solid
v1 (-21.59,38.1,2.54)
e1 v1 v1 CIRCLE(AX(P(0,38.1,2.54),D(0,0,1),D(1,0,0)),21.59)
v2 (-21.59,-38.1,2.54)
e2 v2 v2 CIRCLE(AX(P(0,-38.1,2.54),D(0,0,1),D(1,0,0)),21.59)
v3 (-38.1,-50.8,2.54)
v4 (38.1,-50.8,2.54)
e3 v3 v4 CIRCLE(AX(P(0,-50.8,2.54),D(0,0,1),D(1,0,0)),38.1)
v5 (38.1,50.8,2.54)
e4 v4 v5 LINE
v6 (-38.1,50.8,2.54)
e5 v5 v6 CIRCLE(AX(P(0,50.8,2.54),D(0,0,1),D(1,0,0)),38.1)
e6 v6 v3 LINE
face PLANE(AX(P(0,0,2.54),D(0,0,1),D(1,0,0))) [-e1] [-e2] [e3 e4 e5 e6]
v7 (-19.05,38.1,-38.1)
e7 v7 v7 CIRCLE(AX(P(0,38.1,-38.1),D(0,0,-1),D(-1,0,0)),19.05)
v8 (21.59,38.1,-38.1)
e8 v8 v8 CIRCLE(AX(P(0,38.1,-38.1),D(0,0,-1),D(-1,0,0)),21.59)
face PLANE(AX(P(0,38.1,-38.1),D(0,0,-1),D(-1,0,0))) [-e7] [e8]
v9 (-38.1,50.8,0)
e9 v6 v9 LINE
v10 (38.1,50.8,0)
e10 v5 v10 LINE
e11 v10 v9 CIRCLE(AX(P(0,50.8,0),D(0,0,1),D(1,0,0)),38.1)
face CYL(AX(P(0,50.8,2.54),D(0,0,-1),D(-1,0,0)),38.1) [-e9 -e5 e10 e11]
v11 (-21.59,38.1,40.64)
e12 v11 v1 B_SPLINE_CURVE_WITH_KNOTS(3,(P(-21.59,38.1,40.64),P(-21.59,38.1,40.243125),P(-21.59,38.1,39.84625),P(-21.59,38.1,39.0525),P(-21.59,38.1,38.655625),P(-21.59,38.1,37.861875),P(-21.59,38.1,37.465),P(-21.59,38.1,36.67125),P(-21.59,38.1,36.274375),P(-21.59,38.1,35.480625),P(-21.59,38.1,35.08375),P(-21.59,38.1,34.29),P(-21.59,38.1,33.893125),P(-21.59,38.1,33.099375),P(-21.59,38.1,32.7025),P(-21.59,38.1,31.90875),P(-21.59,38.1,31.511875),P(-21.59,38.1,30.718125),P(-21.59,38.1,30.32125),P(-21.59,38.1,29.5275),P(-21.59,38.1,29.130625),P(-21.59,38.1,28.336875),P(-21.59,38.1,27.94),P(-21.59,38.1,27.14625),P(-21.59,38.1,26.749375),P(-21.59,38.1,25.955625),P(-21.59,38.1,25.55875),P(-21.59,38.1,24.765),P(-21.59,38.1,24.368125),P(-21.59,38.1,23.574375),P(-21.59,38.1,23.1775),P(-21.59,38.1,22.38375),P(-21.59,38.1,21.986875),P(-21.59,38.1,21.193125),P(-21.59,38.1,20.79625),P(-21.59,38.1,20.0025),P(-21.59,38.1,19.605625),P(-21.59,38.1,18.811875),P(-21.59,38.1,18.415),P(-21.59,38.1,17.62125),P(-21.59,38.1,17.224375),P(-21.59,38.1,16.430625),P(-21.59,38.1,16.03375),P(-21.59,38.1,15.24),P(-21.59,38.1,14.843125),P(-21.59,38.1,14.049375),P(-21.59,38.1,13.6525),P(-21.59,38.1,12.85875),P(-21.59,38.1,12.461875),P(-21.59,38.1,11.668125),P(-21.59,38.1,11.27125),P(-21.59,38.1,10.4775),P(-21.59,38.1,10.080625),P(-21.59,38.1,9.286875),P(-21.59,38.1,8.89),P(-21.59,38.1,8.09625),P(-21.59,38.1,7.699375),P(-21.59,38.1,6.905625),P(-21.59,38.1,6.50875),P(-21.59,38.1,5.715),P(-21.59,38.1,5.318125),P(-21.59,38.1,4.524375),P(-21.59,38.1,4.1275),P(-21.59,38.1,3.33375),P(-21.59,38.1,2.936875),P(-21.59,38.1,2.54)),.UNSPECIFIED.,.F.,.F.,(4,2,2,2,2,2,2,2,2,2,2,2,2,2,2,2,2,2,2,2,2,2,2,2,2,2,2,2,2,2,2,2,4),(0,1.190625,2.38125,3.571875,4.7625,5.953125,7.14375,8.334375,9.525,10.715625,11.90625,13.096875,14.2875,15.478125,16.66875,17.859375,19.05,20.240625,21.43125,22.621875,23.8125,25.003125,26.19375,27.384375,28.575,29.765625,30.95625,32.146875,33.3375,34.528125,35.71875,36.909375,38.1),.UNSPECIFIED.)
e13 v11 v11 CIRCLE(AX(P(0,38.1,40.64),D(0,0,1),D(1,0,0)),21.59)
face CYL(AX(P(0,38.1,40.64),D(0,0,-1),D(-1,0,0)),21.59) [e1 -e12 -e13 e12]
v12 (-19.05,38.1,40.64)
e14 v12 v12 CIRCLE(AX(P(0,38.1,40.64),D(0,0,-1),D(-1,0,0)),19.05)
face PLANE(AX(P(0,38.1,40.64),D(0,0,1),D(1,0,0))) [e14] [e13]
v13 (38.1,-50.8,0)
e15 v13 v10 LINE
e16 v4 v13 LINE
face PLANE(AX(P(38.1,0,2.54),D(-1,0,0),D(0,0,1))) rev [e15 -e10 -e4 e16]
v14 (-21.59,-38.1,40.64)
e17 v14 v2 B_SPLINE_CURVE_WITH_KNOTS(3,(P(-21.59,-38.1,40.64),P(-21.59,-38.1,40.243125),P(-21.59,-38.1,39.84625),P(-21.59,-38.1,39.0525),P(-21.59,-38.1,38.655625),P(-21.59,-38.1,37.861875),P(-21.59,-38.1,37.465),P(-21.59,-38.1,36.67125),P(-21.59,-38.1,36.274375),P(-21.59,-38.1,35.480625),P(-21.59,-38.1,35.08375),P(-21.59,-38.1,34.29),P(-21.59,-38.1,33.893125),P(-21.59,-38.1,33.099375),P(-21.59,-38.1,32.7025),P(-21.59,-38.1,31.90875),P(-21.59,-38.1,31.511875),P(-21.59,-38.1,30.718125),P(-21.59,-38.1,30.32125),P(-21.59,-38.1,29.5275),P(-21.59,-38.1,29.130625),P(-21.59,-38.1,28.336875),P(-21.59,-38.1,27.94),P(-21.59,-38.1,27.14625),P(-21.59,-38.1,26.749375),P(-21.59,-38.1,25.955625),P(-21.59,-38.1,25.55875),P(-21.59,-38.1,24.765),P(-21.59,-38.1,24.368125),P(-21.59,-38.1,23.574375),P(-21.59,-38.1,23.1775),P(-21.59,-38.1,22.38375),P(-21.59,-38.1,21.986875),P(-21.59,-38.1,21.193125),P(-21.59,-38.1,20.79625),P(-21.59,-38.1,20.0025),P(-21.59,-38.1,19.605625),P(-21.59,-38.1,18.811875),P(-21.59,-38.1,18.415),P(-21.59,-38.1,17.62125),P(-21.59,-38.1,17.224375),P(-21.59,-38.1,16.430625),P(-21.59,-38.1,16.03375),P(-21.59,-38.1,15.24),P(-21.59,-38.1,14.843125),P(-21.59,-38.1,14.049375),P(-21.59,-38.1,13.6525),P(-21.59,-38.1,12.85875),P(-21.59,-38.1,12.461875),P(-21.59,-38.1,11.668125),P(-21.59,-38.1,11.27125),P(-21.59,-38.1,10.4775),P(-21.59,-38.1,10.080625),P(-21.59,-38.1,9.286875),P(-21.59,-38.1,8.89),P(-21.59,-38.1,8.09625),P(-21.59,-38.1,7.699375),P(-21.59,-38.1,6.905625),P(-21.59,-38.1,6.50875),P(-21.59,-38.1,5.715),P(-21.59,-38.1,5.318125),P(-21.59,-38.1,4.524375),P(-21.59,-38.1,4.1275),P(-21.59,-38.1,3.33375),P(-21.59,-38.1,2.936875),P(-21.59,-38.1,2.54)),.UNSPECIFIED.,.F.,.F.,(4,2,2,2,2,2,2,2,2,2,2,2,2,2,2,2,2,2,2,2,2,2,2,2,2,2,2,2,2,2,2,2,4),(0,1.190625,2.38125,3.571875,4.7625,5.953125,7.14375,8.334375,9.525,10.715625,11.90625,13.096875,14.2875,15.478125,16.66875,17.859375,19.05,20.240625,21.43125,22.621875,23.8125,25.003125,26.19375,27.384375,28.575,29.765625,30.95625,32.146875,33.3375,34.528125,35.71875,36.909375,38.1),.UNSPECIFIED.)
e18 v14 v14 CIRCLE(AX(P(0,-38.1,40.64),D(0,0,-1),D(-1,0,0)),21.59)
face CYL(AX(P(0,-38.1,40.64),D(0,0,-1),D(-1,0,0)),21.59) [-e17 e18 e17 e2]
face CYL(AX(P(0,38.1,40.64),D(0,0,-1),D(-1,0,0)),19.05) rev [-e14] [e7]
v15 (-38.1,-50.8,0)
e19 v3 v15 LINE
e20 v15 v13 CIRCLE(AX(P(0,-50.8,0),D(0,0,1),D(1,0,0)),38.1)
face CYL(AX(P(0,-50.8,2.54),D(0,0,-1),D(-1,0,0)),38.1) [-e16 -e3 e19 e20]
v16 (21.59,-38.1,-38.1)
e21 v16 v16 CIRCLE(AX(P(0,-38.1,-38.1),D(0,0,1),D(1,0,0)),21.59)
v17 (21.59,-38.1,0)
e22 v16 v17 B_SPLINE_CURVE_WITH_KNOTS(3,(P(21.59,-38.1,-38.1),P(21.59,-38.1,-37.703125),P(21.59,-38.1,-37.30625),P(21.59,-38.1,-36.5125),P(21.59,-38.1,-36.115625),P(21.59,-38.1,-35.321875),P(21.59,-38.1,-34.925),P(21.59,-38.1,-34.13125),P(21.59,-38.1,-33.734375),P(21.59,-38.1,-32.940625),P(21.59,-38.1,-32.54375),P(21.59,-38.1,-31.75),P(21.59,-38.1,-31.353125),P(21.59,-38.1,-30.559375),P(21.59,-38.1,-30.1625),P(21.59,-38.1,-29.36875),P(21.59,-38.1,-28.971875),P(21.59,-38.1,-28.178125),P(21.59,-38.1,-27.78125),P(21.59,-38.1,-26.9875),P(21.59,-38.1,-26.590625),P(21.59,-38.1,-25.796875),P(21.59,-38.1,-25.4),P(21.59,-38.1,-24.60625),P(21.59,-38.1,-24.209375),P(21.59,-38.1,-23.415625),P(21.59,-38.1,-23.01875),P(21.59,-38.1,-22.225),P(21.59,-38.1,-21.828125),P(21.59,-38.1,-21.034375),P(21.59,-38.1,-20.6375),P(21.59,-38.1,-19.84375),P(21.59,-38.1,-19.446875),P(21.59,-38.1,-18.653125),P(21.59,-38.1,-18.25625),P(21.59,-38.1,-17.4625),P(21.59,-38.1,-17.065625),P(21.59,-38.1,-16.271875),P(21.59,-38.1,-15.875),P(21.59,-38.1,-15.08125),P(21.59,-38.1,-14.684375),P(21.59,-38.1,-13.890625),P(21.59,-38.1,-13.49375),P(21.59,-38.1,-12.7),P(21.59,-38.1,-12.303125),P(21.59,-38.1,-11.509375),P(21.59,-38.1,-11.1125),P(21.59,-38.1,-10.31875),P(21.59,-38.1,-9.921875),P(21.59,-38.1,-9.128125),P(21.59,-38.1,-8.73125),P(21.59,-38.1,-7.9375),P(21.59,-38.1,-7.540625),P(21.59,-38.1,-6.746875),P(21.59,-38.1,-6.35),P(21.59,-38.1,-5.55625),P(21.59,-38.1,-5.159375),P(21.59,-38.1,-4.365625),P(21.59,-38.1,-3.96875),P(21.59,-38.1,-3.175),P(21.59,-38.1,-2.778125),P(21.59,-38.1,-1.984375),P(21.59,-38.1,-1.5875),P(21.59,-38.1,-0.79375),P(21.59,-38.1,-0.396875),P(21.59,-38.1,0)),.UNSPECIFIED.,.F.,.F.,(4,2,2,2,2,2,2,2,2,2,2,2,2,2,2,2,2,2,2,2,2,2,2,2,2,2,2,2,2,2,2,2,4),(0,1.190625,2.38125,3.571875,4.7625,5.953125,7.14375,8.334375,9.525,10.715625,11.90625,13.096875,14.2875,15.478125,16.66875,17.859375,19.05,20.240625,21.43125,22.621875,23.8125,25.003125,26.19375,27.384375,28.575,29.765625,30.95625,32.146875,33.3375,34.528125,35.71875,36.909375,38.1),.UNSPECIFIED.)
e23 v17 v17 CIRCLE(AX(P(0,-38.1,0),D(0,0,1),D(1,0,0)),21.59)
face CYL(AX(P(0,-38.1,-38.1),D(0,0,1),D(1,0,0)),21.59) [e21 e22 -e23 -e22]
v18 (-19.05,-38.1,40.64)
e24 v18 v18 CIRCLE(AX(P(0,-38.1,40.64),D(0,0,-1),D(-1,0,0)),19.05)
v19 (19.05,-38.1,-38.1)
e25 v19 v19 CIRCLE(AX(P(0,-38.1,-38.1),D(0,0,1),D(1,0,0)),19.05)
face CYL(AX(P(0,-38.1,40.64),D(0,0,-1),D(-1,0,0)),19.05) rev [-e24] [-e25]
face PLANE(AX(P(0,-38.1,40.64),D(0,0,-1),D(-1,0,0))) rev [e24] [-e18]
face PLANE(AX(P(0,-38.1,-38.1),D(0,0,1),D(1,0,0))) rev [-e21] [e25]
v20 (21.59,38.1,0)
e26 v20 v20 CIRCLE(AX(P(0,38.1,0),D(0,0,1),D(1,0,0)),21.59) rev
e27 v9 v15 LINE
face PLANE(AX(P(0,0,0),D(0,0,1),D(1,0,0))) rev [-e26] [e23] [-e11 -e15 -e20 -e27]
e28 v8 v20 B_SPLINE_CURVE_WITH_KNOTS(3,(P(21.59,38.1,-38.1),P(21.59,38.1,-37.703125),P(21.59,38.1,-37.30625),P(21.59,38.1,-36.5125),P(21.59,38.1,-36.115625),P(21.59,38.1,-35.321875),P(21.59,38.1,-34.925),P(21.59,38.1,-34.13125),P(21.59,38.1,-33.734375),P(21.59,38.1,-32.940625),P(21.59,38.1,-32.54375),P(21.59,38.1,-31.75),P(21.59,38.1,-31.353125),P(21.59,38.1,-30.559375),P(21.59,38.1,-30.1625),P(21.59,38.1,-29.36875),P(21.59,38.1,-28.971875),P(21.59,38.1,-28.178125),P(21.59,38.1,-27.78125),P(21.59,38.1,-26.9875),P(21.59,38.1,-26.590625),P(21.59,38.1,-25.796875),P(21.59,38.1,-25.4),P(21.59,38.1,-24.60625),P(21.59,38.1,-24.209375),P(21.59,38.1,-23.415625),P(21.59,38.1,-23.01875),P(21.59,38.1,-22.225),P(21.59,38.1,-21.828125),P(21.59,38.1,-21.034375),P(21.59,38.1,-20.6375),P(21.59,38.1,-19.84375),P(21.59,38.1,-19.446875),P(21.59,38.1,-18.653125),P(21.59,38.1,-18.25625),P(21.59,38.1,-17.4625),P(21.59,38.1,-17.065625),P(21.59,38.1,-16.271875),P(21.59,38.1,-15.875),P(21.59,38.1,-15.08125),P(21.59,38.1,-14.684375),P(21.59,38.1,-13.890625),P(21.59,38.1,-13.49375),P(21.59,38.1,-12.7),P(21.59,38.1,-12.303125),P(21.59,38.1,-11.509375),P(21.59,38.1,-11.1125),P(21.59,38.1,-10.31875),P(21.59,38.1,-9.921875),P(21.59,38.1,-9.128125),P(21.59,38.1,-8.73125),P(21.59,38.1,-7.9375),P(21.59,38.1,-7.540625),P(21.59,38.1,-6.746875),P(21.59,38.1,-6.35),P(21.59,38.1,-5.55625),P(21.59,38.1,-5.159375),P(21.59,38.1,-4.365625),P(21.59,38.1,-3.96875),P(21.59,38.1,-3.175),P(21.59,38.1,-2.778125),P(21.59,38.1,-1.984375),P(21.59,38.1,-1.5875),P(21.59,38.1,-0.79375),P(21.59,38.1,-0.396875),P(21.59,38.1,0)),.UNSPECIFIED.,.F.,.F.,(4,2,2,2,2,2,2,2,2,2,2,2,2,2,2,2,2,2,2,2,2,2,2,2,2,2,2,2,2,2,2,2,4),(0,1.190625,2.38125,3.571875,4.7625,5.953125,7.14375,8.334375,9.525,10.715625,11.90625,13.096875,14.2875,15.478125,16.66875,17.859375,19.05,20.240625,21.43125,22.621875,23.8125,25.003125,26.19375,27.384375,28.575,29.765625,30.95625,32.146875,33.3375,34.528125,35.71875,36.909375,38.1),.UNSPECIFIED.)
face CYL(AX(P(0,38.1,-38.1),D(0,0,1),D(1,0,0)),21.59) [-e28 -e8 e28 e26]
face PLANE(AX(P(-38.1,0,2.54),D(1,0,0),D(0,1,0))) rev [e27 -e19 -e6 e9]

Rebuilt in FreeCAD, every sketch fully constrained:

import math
import FreeCAD as App
import Part
import Sketcher
Q = App.Units.Quantity

doc = App.newDocument("Part")
params = doc.addObject("Spreadsheet::Sheet", "Params")
for row, (alias, value) in enumerate([
    ("sketch1_radius", "1.5 in"),
    ("sketch1_height", "4 in"),
    ("pad1_length", "0.1 in"),
    ("sketch2_diameter", "1.7 in"),
    ("pad2_length", "1.5 in"),
    ("sketch3_diameter", "1.7 in"),
    ("pad3_length", "1.5 in"),
    ("sketch4_diameter", "1.5 in"),
], start=1):
    params.set(f"A{row}", alias)
    params.set(f"B{row}", "=" + value)
    params.setAlias(f"B{row}", alias)

body = doc.addObject("PartDesign::Body", "Body")

# Sketch on XY plane
sketch1 = doc.addObject("Sketcher::SketchObject", "Sketch")
body.addObject(sketch1)
sketch1.AttachmentSupport = (doc.XY_Plane, [""])
sketch1.MapMode = "FlatFace"
sketch1.addGeometry([
    Part.ArcOfCircle(Part.Circle(App.Vector(0, -50.8, 0), App.Vector(0, 0, 1), 38.1), math.radians(180), math.radians(360)),
    Part.LineSegment(App.Vector(38.1, -50.8, 0), App.Vector(38.1, 50.8, 0)),
    Part.ArcOfCircle(Part.Circle(App.Vector(0, 50.8, 0), App.Vector(0, 0, 1), 38.1), math.radians(0), math.radians(180)),
    Part.LineSegment(App.Vector(-38.1, 50.8, 0), App.Vector(-38.1, -50.8, 0)),
], False)
sketch1.addConstraint([
    Sketcher.Constraint("Tangent", 0, 2, 1, 1),
    Sketcher.Constraint("Tangent", 1, 2, 2, 1),
    Sketcher.Constraint("Tangent", 2, 2, 3, 1),
    Sketcher.Constraint("Tangent", 3, 2, 0, 1),
    Sketcher.Constraint("Vertical", 1),
    Sketcher.Constraint("Vertical", 3),
    Sketcher.Constraint("Symmetric", 0, 3, 2, 3, -1, 1),
    Sketcher.Constraint("Radius", 0, Q("1.5 in")),
    Sketcher.Constraint("DistanceY", 1, 1, 1, 2, Q("4 in")),
])
sketch1.setExpression("Constraints[7]", "Params.sketch1_radius")
sketch1.setExpression("Constraints[8]", "Params.sketch1_height")
pad1 = doc.addObject("PartDesign::Pad", "Pad")
body.addObject(pad1)
pad1.Profile = sketch1
pad1.setExpression("Length", "Params.pad1_length")

# Sketch on XY plane
sketch2 = doc.addObject("Sketcher::SketchObject", "Sketch001")
body.addObject(sketch2)
sketch2.AttachmentSupport = (doc.XY_Plane, [""])
sketch2.MapMode = "FlatFace"
sketch2.addGeometry([
    Part.Circle(App.Vector(0, 38.1, 0), App.Vector(0, 0, 1), 21.59),
    Part.Circle(App.Vector(0, -38.1, 0), App.Vector(0, 0, 1), 21.59),
], False)
sketch2.addConstraint([
    Sketcher.Constraint("Equal", 0, 1),
    Sketcher.Constraint("Symmetric", 0, 3, 1, 3, -1, 1),
    Sketcher.Constraint("PointOnObject", 0, 3, -2),
    Sketcher.Constraint("Diameter", 0, Q("1.7 in")),
    Sketcher.Constraint("DistanceY", 1, 3, 0, 3, Q("3 in")),
])
sketch2.setExpression("Constraints[3]", "Params.sketch2_diameter")
pad2 = doc.addObject("PartDesign::Pad", "Pad001")
body.addObject(pad2)
pad2.Profile = sketch2
pad2.setExpression("Length", "Params.pad2_length")
pad2.Reversed = True

# Sketch on XY plane
sketch3 = doc.addObject("Sketcher::SketchObject", "Sketch002")
body.addObject(sketch3)
sketch3.AttachmentSupport = (doc.XY_Plane, [""])
sketch3.MapMode = "FlatFace"
sketch3.AttachmentOffset = App.Placement(App.Vector(0, 0, 1.6 * 25.4), App.Rotation())
sketch3.addGeometry([
    Part.Circle(App.Vector(0, 38.1, 0), App.Vector(0, 0, 1), 21.59),
    Part.Circle(App.Vector(0, -38.1, 0), App.Vector(0, 0, 1), 21.59),
], False)
sketch3.addConstraint([
    Sketcher.Constraint("Equal", 0, 1),
    Sketcher.Constraint("Symmetric", 0, 3, 1, 3, -1, 1),
    Sketcher.Constraint("PointOnObject", 0, 3, -2),
    Sketcher.Constraint("Diameter", 0, Q("1.7 in")),
    Sketcher.Constraint("DistanceY", 1, 3, 0, 3, Q("3 in")),
])
sketch3.setExpression("Constraints[3]", "Params.sketch3_diameter")
pad3 = doc.addObject("PartDesign::Pad", "Pad002")
body.addObject(pad3)
pad3.Profile = sketch3
pad3.setExpression("Length", "Params.pad3_length")
pad3.Reversed = True

# Sketch on XY plane
sketch4 = doc.addObject("Sketcher::SketchObject", "Sketch003")
body.addObject(sketch4)
sketch4.AttachmentSupport = (doc.XY_Plane, [""])
sketch4.MapMode = "FlatFace"
sketch4.AttachmentOffset = App.Placement(App.Vector(0, 0, -1.5 * 25.4), App.Rotation())
sketch4.addGeometry([
    Part.Circle(App.Vector(0, 38.1, 0), App.Vector(0, 0, 1), 19.05),
    Part.Circle(App.Vector(0, -38.1, 0), App.Vector(0, 0, 1), 19.05),
], False)
sketch4.addConstraint([
    Sketcher.Constraint("Equal", 0, 1),
    Sketcher.Constraint("Symmetric", 0, 3, 1, 3, -1, 1),
    Sketcher.Constraint("PointOnObject", 0, 3, -2),
    Sketcher.Constraint("Diameter", 0, Q("1.5 in")),
    Sketcher.Constraint("DistanceY", 1, 3, 0, 3, Q("3 in")),
])
sketch4.setExpression("Constraints[3]", "Params.sketch4_diameter")
pocket1 = doc.addObject("PartDesign::Pocket", "Pocket")
body.addObject(pocket1)
pocket1.Profile = sketch4
pocket1.Type = "ThroughAll"
pocket1.Midplane = True

doc.recompute()
